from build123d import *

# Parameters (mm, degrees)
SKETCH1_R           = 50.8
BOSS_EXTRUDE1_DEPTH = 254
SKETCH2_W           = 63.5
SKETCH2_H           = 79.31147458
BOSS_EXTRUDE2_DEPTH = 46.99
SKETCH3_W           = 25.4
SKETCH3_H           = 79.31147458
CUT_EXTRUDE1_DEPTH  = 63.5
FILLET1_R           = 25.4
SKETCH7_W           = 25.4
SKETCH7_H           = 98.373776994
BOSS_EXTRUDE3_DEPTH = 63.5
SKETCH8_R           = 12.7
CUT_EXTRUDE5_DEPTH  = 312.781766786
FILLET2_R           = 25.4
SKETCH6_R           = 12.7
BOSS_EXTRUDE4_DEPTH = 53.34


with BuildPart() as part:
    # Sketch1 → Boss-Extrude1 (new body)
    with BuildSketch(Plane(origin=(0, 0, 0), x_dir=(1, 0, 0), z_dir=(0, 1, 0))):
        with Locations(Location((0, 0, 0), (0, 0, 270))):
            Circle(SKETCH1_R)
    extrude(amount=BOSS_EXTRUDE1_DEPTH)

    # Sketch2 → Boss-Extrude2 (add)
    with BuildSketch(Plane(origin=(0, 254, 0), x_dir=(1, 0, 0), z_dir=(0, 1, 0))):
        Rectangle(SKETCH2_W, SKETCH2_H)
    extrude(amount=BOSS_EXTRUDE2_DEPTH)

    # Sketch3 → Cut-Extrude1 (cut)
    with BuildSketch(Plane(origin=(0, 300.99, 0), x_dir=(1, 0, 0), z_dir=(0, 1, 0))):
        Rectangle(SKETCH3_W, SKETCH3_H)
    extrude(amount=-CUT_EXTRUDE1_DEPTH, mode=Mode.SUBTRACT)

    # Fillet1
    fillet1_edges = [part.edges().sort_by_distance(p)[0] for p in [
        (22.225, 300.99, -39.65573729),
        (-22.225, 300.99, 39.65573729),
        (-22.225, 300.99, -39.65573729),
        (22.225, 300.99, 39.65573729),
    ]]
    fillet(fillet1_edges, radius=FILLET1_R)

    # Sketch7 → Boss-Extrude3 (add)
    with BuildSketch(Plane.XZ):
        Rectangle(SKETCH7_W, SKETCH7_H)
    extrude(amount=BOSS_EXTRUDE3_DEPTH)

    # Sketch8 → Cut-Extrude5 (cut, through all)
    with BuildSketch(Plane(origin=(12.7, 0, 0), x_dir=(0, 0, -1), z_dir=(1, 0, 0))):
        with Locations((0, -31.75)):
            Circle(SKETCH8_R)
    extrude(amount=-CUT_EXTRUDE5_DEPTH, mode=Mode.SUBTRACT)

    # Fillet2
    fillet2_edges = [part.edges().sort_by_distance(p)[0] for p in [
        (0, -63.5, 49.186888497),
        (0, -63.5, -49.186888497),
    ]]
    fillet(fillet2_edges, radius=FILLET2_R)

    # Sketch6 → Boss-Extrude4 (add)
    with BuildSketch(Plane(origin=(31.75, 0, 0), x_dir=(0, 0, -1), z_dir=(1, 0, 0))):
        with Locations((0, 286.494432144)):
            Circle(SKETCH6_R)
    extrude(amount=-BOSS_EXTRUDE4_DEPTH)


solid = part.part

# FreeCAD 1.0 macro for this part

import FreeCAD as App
import Part
import Sketcher
from FreeCAD import Vector
Q = App.Units.Quantity


def edges_at(feature, points):
    """Names of the edges that pass closest to the given points."""
    edges = feature.Shape.Edges
    near = lambda p: min(range(len(edges)), key=lambda i: edges[i].distToShape(Part.Vertex(*p))[0])
    return sorted({f"Edge{near(p) + 1}" for p in points})


def add_polygon(sketch, points):
    """Adds a closed chain of lines whose ends are joined by coincident constraints."""
    first, n = sketch.GeometryCount, len(points)
    for a, b in zip(points, points[1:] + points[:1]):
        sketch.addGeometry(Part.LineSegment(App.Vector(*a, 0), App.Vector(*b, 0)), False)
    for i in range(n):
        sketch.addConstraint(Sketcher.Constraint("Coincident", first + i, 2, first + (i + 1) % n, 1))

doc = App.newDocument("Part")
params = doc.addObject("Spreadsheet::Sheet", "Params")
for row, (alias, value) in enumerate([
    ("sketch1_diameter", "4 in"),
    ("pad1_length", "10 in"),
    ("sketch2_width", "2.5 in"),
    ("pad2_length", "1.85 in"),
    ("sketch3_width", "1 in"),
    ("pocket1_length", "2.5 in"),
    ("fillet_radius", "1 in"),
    ("sketch4_width", "1 in"),
    ("pad3_length", "2.5 in"),
    ("sketch5_diameter", "1 in"),
    ("fillet2_radius", "1 in"),
    ("sketch6_diameter", "1 in"),
    ("pad4_length", "2.1 in"),
], start=1):
    params.set(f"A{row}", alias)
    params.set(f"B{row}", "=" + value)
    params.setAlias(f"B{row}", alias)

body = doc.addObject("PartDesign::Body", "Body")

# Sketch on XZ plane
sketch1 = doc.addObject("Sketcher::SketchObject", "Sketch")
body.addObject(sketch1)
sketch1.AttachmentSupport = (doc.XZ_Plane, [""])
sketch1.MapMode = "FlatFace"
sketch1.addGeometry(Part.Circle(Vector(0, 0, 0), Vector(0, 0, 1), 51), False)
sketch1.addConstraint([
    Sketcher.Constraint("Coincident", 0, 3, -1, 1),
    Sketcher.Constraint("Diameter", 0, Q("4 in")),
])
sketch1.setExpression("Constraints[1]", "Params.sketch1_diameter")
pad1 = doc.addObject("PartDesign::Pad", "Pad")
body.addObject(pad1)
pad1.Profile = sketch1
pad1.setExpression("Length", "Params.pad1_length")
pad1.Reversed = True

# Sketch on XZ plane
sketch2 = doc.addObject("Sketcher::SketchObject", "Sketch001")
body.addObject(sketch2)
sketch2.AttachmentSupport = (doc.XZ_Plane, [""])
sketch2.MapMode = "FlatFace"
sketch2.AttachmentOffset = App.Placement(Vector(0, 0, -10 * 25.4), App.Rotation())
add_polygon(sketch2, [(-32, -40), (-32, 40), (32, 40), (32, -40)])  # lines 0-3
sketch2.addConstraint([
    Sketcher.Constraint("Vertical", 0),
    Sketcher.Constraint("Horizontal", 1),
    Sketcher.Constraint("Vertical", 2),
    Sketcher.Constraint("Horizontal", 3),
    Sketcher.Constraint("Symmetric", 0, 2, 2, 2, -1, 1),
    Sketcher.Constraint("DistanceX", 1, 1, 1, 2, Q("2.5 in")),
    Sketcher.Constraint("DistanceY", 0, 1, 0, 2, Q("79.311475 mm")),
])
sketch2.setExpression("Constraints[9]", "Params.sketch2_width")
pad2 = doc.addObject("PartDesign::Pad", "Pad001")
body.addObject(pad2)
pad2.Profile = sketch2
pad2.setExpression("Length", "Params.pad2_length")
pad2.Reversed = True

# Sketch on XZ plane
sketch3 = doc.addObject("Sketcher::SketchObject", "Sketch002")
body.addObject(sketch3)
sketch3.AttachmentSupport = (doc.XZ_Plane, [""])
sketch3.MapMode = "FlatFace"
sketch3.AttachmentOffset = App.Placement(Vector(0, 0, -11.85 * 25.4), App.Rotation())
add_polygon(sketch3, [(-13, -40), (-13, 40), (13, 40), (13, -40)])  # lines 0-3
sketch3.addConstraint([
    Sketcher.Constraint("Vertical", 0),
    Sketcher.Constraint("Horizontal", 1),
    Sketcher.Constraint("Vertical", 2),
    Sketcher.Constraint("Horizontal", 3),
    Sketcher.Constraint("Symmetric", 0, 2, 2, 2, -1, 1),
    Sketcher.Constraint("DistanceX", 1, 1, 1, 2, Q("1 in")),
    Sketcher.Constraint("DistanceY", 0, 1, 0, 2, Q("79.311475 mm")),
])
sketch3.setExpression("Constraints[9]", "Params.sketch3_width")
pocket1 = doc.addObject("PartDesign::Pocket", "Pocket")
body.addObject(pocket1)
pocket1.Profile = sketch3
pocket1.setExpression("Length", "Params.pocket1_length")
pocket1.Reversed = True
doc.recompute()

fillet = doc.addObject("PartDesign::Fillet", "Fillet")
body.addObject(fillet)
fillet.Base = (pocket1, edges_at(pocket1, [
    (22.225, 300.99, -39.656),
    (-22.225, 300.99, 39.656),
    (-22.225, 300.99, -39.656),
    (22.225, 300.99, 39.656),
]))
fillet.setExpression("Radius", "Params.fillet_radius")

# Sketch on XZ plane
sketch4 = doc.addObject("Sketcher::SketchObject", "Sketch003")
body.addObject(sketch4)
sketch4.AttachmentSupport = (doc.XZ_Plane, [""])
sketch4.MapMode = "FlatFace"
add_polygon(sketch4, [(-13, 49), (-13, -49), (13, -49), (13, 49)])  # lines 0-3
sketch4.addConstraint([
    Sketcher.Constraint("Vertical", 0),
    Sketcher.Constraint("Horizontal", 1),
    Sketcher.Constraint("Vertical", 2),
    Sketcher.Constraint("Horizontal", 3),
    Sketcher.Constraint("Symmetric", 0, 2, 2, 2, -1, 1),
    Sketcher.Constraint("DistanceX", 1, 1, 1, 2, Q("1 in")),
    Sketcher.Constraint("DistanceY", 0, 2, 0, 1, Q("98.373777 mm")),
])
sketch4.setExpression("Constraints[9]", "Params.sketch4_width")
pad3 = doc.addObject("PartDesign::Pad", "Pad002")
body.addObject(pad3)
pad3.Profile = sketch4
pad3.setExpression("Length", "Params.pad3_length")

# Sketch on YZ plane
sketch5 = doc.addObject("Sketcher::SketchObject", "Sketch004")
body.addObject(sketch5)
sketch5.AttachmentSupport = (doc.YZ_Plane, [""])
sketch5.MapMode = "FlatFace"
sketch5.AttachmentOffset = App.Placement(Vector(0, 0, 0.5 * 25.4), App.Rotation())
sketch5.addGeometry(Part.Circle(Vector(-32, 0, 0), Vector(0, 0, 1), 13), False)
sketch5.addConstraint([
    Sketcher.Constraint("PointOnObject", 0, 3, -1),
    Sketcher.Constraint("Diameter", 0, Q("1 in")),
    Sketcher.Constraint("DistanceX", 0, 3, -1, 1, Q("1.25 in")),
])
sketch5.setExpression("Constraints[1]", "Params.sketch5_diameter")
pocket2 = doc.addObject("PartDesign::Pocket", "Pocket001")
body.addObject(pocket2)
pocket2.Profile = sketch5
pocket2.Type = "ThroughAll"
doc.recompute()

fillet2 = doc.addObject("PartDesign::Fillet", "Fillet001")
body.addObject(fillet2)
fillet2.Base = (pocket2, edges_at(pocket2, [(0, -63.5, 49.187), (0, -63.5, -49.187)]))
fillet2.setExpression("Radius", "Params.fillet2_radius")

# Sketch on YZ plane
sketch6 = doc.addObject("Sketcher::SketchObject", "Sketch005")
body.addObject(sketch6)
sketch6.AttachmentSupport = (doc.YZ_Plane, [""])
sketch6.MapMode = "FlatFace"
sketch6.AttachmentOffset = App.Placement(Vector(0, 0, 1.25 * 25.4), App.Rotation())
sketch6.addGeometry(Part.Circle(Vector(286, 0, 0), Vector(0, 0, 1), 13), False)
sketch6.addConstraint([
    Sketcher.Constraint("PointOnObject", 0, 3, -1),
    Sketcher.Constraint("Diameter", 0, Q("1 in")),
    Sketcher.Constraint("DistanceX", -1, 1, 0, 3, Q("286.494432 mm")),
])
sketch6.setExpression("Constraints[1]", "Params.sketch6_diameter")
pad4 = doc.addObject("PartDesign::Pad", "Pad003")
body.addObject(pad4)
pad4.Profile = sketch6
pad4.setExpression("Length", "Params.pad4_length")
pad4.Reversed = True

doc.recompute()
